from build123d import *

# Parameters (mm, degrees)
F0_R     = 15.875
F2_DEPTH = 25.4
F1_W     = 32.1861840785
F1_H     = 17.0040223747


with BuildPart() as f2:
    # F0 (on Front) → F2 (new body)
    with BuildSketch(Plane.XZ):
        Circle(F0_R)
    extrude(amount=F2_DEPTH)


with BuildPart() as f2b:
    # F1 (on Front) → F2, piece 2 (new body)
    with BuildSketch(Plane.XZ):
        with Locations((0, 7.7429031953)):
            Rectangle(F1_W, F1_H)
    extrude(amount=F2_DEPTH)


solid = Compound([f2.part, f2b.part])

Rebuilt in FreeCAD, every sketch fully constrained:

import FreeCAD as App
import Part
import Sketcher
from FreeCAD import Vector
Q = App.Units.Quantity

doc = App.newDocument("Part")
body = doc.addObject("PartDesign::Body", "Body")

sketch1 = body.newObject("Sketcher::SketchObject", "Sketch")
sketch1.AttachmentSupport = (doc.getObject("XZ_Plane"), [""])
sketch1.MapMode = "FlatFace"
sketch1.addGeometry(Part.Circle(Vector(0, 0, 0), Vector(0, 0, 1), 16), False)
sketch1.addConstraint([
    Sketcher.Constraint("Coincident", 0, 3, -1, 1),
    Sketcher.Constraint("Diameter", 0, Q("1.25 in")),
])
pad1 = body.newObject("PartDesign::Pad", "Pad")
pad1.Profile = sketch1
pad1.Length = Q("1 in")
body2 = doc.addObject("PartDesign::Body", "Body001")

sketch2 = body2.newObject("Sketcher::SketchObject", "Sketch001")
sketch2.AttachmentSupport = (doc.getObject("XZ_Plane001"), [""])
sketch2.MapMode = "FlatFace"
sketch2.addGeometry([
    Part.LineSegment(Vector(-16, 16, 0), Vector(-16, -1, 0)),
    Part.LineSegment(Vector(-16, -1, 0), Vector(16, -1, 0)),
    Part.LineSegment(Vector(16, -1, 0), Vector(16, 16, 0)),
    Part.LineSegment(Vector(16, 16, 0), Vector(-16, 16, 0)),
], False)
sketch2.addConstraint([
    Sketcher.Constraint("Coincident", 0, 2, 1, 1),
    Sketcher.Constraint("Coincident", 1, 2, 2, 1),
    Sketcher.Constraint("Coincident", 2, 2, 3, 1),
    Sketcher.Constraint("Coincident", 3, 2, 0, 1),
    Sketcher.Constraint("Vertical", 0),
    Sketcher.Constraint("Horizontal", 1),
    Sketcher.Constraint("Vertical", 2),
    Sketcher.Constraint("Horizontal", 3),
    Sketcher.Constraint("DistanceX", 1, 1, 1, 2, Q("32.186184 mm")),
    Sketcher.Constraint("DistanceY", 0, 2, 0, 1, Q("17.004022 mm")),
    Sketcher.Constraint("DistanceX", 0, 2, -1, 1, Q("16.093092 mm")),
    Sketcher.Constraint("DistanceY", 0, 2, -1, 1, Q("0.759108 mm")),
])
pad2 = body2.newObject("PartDesign::Pad", "Pad001")
pad2.Profile = sketch2
pad2.Length = Q("1 in")

doc.recompute()
